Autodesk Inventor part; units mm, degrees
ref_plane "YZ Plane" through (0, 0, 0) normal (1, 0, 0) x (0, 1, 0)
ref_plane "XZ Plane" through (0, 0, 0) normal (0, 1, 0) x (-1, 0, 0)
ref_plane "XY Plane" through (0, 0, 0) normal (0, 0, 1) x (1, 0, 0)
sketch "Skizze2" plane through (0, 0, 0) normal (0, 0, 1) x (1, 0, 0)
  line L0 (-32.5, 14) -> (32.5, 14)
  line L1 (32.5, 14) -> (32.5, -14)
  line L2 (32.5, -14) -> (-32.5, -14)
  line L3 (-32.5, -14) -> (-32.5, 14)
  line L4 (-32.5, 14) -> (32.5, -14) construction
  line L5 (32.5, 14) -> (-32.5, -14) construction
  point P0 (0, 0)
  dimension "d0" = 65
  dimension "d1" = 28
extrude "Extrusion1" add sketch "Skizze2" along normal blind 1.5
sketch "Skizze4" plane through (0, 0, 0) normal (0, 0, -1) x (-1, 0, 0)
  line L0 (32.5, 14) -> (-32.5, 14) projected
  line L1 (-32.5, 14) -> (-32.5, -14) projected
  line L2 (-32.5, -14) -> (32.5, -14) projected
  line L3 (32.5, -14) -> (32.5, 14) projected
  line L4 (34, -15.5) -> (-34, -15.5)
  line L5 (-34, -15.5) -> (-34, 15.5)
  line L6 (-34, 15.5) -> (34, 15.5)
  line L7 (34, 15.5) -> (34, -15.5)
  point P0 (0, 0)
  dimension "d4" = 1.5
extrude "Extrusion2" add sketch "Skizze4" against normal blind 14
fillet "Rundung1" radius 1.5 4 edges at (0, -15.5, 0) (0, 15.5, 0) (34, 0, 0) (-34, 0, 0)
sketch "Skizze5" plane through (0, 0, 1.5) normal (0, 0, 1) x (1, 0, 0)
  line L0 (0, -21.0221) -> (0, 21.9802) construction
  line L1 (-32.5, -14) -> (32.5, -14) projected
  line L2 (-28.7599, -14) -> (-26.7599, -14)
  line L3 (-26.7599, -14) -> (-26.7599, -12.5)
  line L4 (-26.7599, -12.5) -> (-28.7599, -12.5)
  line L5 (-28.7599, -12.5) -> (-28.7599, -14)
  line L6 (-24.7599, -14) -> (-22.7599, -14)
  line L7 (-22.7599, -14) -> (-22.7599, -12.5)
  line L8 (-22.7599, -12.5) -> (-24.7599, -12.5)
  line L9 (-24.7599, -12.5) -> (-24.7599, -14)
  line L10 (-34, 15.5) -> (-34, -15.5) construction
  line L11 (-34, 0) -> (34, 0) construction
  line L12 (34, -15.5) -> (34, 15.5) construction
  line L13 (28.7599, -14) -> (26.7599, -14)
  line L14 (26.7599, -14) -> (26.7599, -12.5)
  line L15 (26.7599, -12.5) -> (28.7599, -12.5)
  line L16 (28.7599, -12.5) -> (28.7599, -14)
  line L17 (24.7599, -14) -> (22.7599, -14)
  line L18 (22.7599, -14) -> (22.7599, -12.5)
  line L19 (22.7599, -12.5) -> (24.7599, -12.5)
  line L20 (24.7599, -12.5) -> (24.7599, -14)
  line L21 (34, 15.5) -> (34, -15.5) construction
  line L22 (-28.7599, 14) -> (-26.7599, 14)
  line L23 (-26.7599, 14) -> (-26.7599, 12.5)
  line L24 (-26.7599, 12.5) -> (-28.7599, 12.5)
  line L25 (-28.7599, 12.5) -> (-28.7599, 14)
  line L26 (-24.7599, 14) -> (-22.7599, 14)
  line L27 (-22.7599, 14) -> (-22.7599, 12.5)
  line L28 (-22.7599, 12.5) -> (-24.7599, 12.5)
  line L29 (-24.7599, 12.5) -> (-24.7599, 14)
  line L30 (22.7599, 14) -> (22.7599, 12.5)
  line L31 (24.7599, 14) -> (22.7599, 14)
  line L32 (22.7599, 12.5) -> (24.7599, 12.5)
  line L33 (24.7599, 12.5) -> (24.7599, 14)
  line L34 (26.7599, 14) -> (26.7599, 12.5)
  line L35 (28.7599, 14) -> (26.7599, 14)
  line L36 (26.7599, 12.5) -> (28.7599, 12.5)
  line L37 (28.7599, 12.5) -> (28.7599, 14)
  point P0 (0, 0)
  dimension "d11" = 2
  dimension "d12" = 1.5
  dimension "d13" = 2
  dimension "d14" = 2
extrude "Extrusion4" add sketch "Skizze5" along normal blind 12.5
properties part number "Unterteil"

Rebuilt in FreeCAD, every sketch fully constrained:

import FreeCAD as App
import Part
import Sketcher


def edges_at(feature, points):
    """Names of the edges that pass closest to the given points."""
    edges = feature.Shape.Edges
    near = lambda p: min(range(len(edges)), key=lambda i: edges[i].distToShape(Part.Vertex(*p))[0])
    return sorted({f"Edge{near(p) + 1}" for p in points})

doc = App.newDocument("Part")
body = doc.addObject("PartDesign::Body", "Body")

# Sketch on XY plane
sketch1 = body.newObject("Sketcher::SketchObject", "Sketch")
sketch1.AttachmentSupport = (doc.getObject("XY_Plane"), [""])
sketch1.MapMode = "FlatFace"
sketch1.addGeometry(Part.LineSegment(App.Vector(32.5, 14, 0), App.Vector(-32.5, 14, 0)), False)
sketch1.addGeometry(Part.LineSegment(App.Vector(-32.5, 14, 0), App.Vector(-32.5, -14, 0)), False)
sketch1.addGeometry(Part.LineSegment(App.Vector(-32.5, -14, 0), App.Vector(32.5, -14, 0)), False)
sketch1.addGeometry(Part.LineSegment(App.Vector(32.5, -14, 0), App.Vector(32.5, 14, 0)), False)
sketch1.addConstraint(Sketcher.Constraint("Coincident", 0, 2, 1, 1))
sketch1.addConstraint(Sketcher.Constraint("Coincident", 1, 2, 2, 1))
sketch1.addConstraint(Sketcher.Constraint("Coincident", 2, 2, 3, 1))
sketch1.addConstraint(Sketcher.Constraint("Coincident", 3, 2, 0, 1))
sketch1.addConstraint(Sketcher.Constraint("Horizontal", 0))
sketch1.addConstraint(Sketcher.Constraint("Vertical", 1))
sketch1.addConstraint(Sketcher.Constraint("Horizontal", 2))
sketch1.addConstraint(Sketcher.Constraint("Vertical", 3))
sketch1.addConstraint(Sketcher.Constraint("Symmetric", 0, 2, 2, 2, -1, 1))
sketch1.addConstraint(Sketcher.Constraint("DistanceX", 0, 2, 0, 1, 65.0))
sketch1.addConstraint(Sketcher.Constraint("DistanceY", 1, 2, 1, 1, 28.0))
pad1 = body.newObject("PartDesign::Pad", "Pad")
pad1.Profile = sketch1
pad1.Length = 1.5

# Sketch on XY plane
sketch2 = body.newObject("Sketcher::SketchObject", "Sketch001")
sketch2.AttachmentSupport = (doc.getObject("XY_Plane"), [""])
sketch2.MapMode = "FlatFace"
sketch2.addGeometry(Part.LineSegment(App.Vector(34, -15.5, 0), App.Vector(-34, -15.5, 0)), False)
sketch2.addGeometry(Part.LineSegment(App.Vector(-34, -15.5, 0), App.Vector(-34, 15.5, 0)), False)
sketch2.addGeometry(Part.LineSegment(App.Vector(-34, 15.5, 0), App.Vector(34, 15.5, 0)), False)
sketch2.addGeometry(Part.LineSegment(App.Vector(34, 15.5, 0), App.Vector(34, -15.5, 0)), False)
sketch2.addGeometry(Part.LineSegment(App.Vector(32.5, 14, 0), App.Vector(-32.5, 14, 0)), False)
sketch2.addGeometry(Part.LineSegment(App.Vector(-32.5, 14, 0), App.Vector(-32.5, -14, 0)), False)
sketch2.addGeometry(Part.LineSegment(App.Vector(-32.5, -14, 0), App.Vector(32.5, -14, 0)), False)
sketch2.addGeometry(Part.LineSegment(App.Vector(32.5, -14, 0), App.Vector(32.5, 14, 0)), False)
sketch2.addConstraint(Sketcher.Constraint("Coincident", 0, 2, 1, 1))
sketch2.addConstraint(Sketcher.Constraint("Coincident", 1, 2, 2, 1))
sketch2.addConstraint(Sketcher.Constraint("Coincident", 2, 2, 3, 1))
sketch2.addConstraint(Sketcher.Constraint("Coincident", 3, 2, 0, 1))
sketch2.addConstraint(Sketcher.Constraint("Coincident", 4, 2, 5, 1))
sketch2.addConstraint(Sketcher.Constraint("Coincident", 5, 2, 6, 1))
sketch2.addConstraint(Sketcher.Constraint("Coincident", 6, 2, 7, 1))
sketch2.addConstraint(Sketcher.Constraint("Coincident", 7, 2, 4, 1))
sketch2.addConstraint(Sketcher.Constraint("Horizontal", 0))
sketch2.addConstraint(Sketcher.Constraint("Vertical", 1))
sketch2.addConstraint(Sketcher.Constraint("Horizontal", 2))
sketch2.addConstraint(Sketcher.Constraint("Vertical", 3))
sketch2.addConstraint(Sketcher.Constraint("Horizontal", 4))
sketch2.addConstraint(Sketcher.Constraint("Vertical", 5))
sketch2.addConstraint(Sketcher.Constraint("Horizontal", 6))
sketch2.addConstraint(Sketcher.Constraint("Vertical", 7))
sketch2.addConstraint(Sketcher.Constraint("Symmetric", 0, 2, 2, 2, -1, 1))
sketch2.addConstraint(Sketcher.Constraint("Symmetric", 4, 2, 6, 2, -1, 1))
sketch2.addConstraint(Sketcher.Constraint("DistanceX", 1, 2, 4, 2, 1.5))
sketch2.addConstraint(Sketcher.Constraint("DistanceY", 4, 2, 1, 2, 1.5))
sketch2.addConstraint(Sketcher.Constraint("DistanceX", 0, 2, 0, 1, 68.0))
sketch2.addConstraint(Sketcher.Constraint("DistanceY", 1, 1, 1, 2, 31.0))
pad2 = body.newObject("PartDesign::Pad", "Pad001")
pad2.Profile = sketch2
pad2.Length = 14
doc.recompute()

fillet = body.newObject("PartDesign::Fillet", "Fillet")
fillet.Base = (pad2, edges_at(pad2, [
    (0, -15.5, 0),
    (0, 15.5, 0),
    (34, 0, 0),
    (-34, 0, 0),
]))
fillet.Radius = 1.5

# Sketch on XY plane
sketch3 = body.newObject("Sketcher::SketchObject", "Sketch002")
sketch3.AttachmentSupport = (doc.getObject("XY_Plane"), [""])
sketch3.MapMode = "FlatFace"
sketch3.AttachmentOffset = App.Placement(App.Vector(0, 0, 1.5), App.Rotation())
sketch3.addGeometry(Part.LineSegment(App.Vector(-28.7599, -12.5, 0), App.Vector(-28.7599, -14, 0)), False)
sketch3.addGeometry(Part.LineSegment(App.Vector(-28.7599, -14, 0), App.Vector(-26.7599, -14, 0)), False)
sketch3.addGeometry(Part.LineSegment(App.Vector(-26.7599, -14, 0), App.Vector(-26.7599, -12.5, 0)), False)
sketch3.addGeometry(Part.LineSegment(App.Vector(-26.7599, -12.5, 0), App.Vector(-28.7599, -12.5, 0)), False)
sketch3.addGeometry(Part.LineSegment(App.Vector(26.7599, -12.5, 0), App.Vector(26.7599, -14, 0)), False)
sketch3.addGeometry(Part.LineSegment(App.Vector(26.7599, -14, 0), App.Vector(28.7599, -14, 0)), False)
sketch3.addGeometry(Part.LineSegment(App.Vector(28.7599, -14, 0), App.Vector(28.7599, -12.5, 0)), False)
sketch3.addGeometry(Part.LineSegment(App.Vector(28.7599, -12.5, 0), App.Vector(26.7599, -12.5, 0)), False)
sketch3.addGeometry(Part.LineSegment(App.Vector(22.7599, -12.5, 0), App.Vector(22.7599, -14, 0)), False)
sketch3.addGeometry(Part.LineSegment(App.Vector(22.7599, -14, 0), App.Vector(24.7599, -14, 0)), False)
sketch3.addGeometry(Part.LineSegment(App.Vector(24.7599, -14, 0), App.Vector(24.7599, -12.5, 0)), False)
sketch3.addGeometry(Part.LineSegment(App.Vector(24.7599, -12.5, 0), App.Vector(22.7599, -12.5, 0)), False)
sketch3.addGeometry(Part.LineSegment(App.Vector(-24.7599, -12.5, 0), App.Vector(-24.7599, -14, 0)), False)
sketch3.addGeometry(Part.LineSegment(App.Vector(-24.7599, -14, 0), App.Vector(-22.7599, -14, 0)), False)
sketch3.addGeometry(Part.LineSegment(App.Vector(-22.7599, -14, 0), App.Vector(-22.7599, -12.5, 0)), False)
sketch3.addGeometry(Part.LineSegment(App.Vector(-22.7599, -12.5, 0), App.Vector(-24.7599, -12.5, 0)), False)
sketch3.addGeometry(Part.LineSegment(App.Vector(-26.7599, 14, 0), App.Vector(-28.7599, 14, 0)), False)
sketch3.addGeometry(Part.LineSegment(App.Vector(-28.7599, 14, 0), App.Vector(-28.7599, 12.5, 0)), False)
sketch3.addGeometry(Part.LineSegment(App.Vector(-28.7599, 12.5, 0), App.Vector(-26.7599, 12.5, 0)), False)
sketch3.addGeometry(Part.LineSegment(App.Vector(-26.7599, 12.5, 0), App.Vector(-26.7599, 14, 0)), False)
sketch3.addGeometry(Part.LineSegment(App.Vector(-22.7599, 14, 0), App.Vector(-24.7599, 14, 0)), False)
sketch3.addGeometry(Part.LineSegment(App.Vector(-24.7599, 14, 0), App.Vector(-24.7599, 12.5, 0)), False)
sketch3.addGeometry(Part.LineSegment(App.Vector(-24.7599, 12.5, 0), App.Vector(-22.7599, 12.5, 0)), False)
sketch3.addGeometry(Part.LineSegment(App.Vector(-22.7599, 12.5, 0), App.Vector(-22.7599, 14, 0)), False)
sketch3.addGeometry(Part.LineSegment(App.Vector(24.7599, 14, 0), App.Vector(22.7599, 14, 0)), False)
sketch3.addGeometry(Part.LineSegment(App.Vector(22.7599, 14, 0), App.Vector(22.7599, 12.5, 0)), False)
sketch3.addGeometry(Part.LineSegment(App.Vector(22.7599, 12.5, 0), App.Vector(24.7599, 12.5, 0)), False)
sketch3.addGeometry(Part.LineSegment(App.Vector(24.7599, 12.5, 0), App.Vector(24.7599, 14, 0)), False)
sketch3.addGeometry(Part.LineSegment(App.Vector(28.7599, 14, 0), App.Vector(26.7599, 14, 0)), False)
sketch3.addGeometry(Part.LineSegment(App.Vector(26.7599, 14, 0), App.Vector(26.7599, 12.5, 0)), False)
sketch3.addGeometry(Part.LineSegment(App.Vector(26.7599, 12.5, 0), App.Vector(28.7599, 12.5, 0)), False)
sketch3.addGeometry(Part.LineSegment(App.Vector(28.7599, 12.5, 0), App.Vector(28.7599, 14, 0)), False)
sketch3.addConstraint(Sketcher.Constraint("Coincident", 0, 2, 1, 1))
sketch3.addConstraint(Sketcher.Constraint("Coincident", 1, 2, 2, 1))
sketch3.addConstraint(Sketcher.Constraint("Coincident", 2, 2, 3, 1))
sketch3.addConstraint(Sketcher.Constraint("Coincident", 3, 2, 0, 1))
sketch3.addConstraint(Sketcher.Constraint("Coincident", 4, 2, 5, 1))
sketch3.addConstraint(Sketcher.Constraint("Coincident", 5, 2, 6, 1))
sketch3.addConstraint(Sketcher.Constraint("Coincident", 6, 2, 7, 1))
sketch3.addConstraint(Sketcher.Constraint("Coincident", 7, 2, 4, 1))
sketch3.addConstraint(Sketcher.Constraint("Coincident", 8, 2, 9, 1))
sketch3.addConstraint(Sketcher.Constraint("Coincident", 9, 2, 10, 1))
sketch3.addConstraint(Sketcher.Constraint("Coincident", 10, 2, 11, 1))
sketch3.addConstraint(Sketcher.Constraint("Coincident", 11, 2, 8, 1))
sketch3.addConstraint(Sketcher.Constraint("Coincident", 12, 2, 13, 1))
sketch3.addConstraint(Sketcher.Constraint("Coincident", 13, 2, 14, 1))
sketch3.addConstraint(Sketcher.Constraint("Coincident", 14, 2, 15, 1))
sketch3.addConstraint(Sketcher.Constraint("Coincident", 15, 2, 12, 1))
sketch3.addConstraint(Sketcher.Constraint("Coincident", 16, 2, 17, 1))
sketch3.addConstraint(Sketcher.Constraint("Coincident", 17, 2, 18, 1))
sketch3.addConstraint(Sketcher.Constraint("Coincident", 18, 2, 19, 1))
sketch3.addConstraint(Sketcher.Constraint("Coincident", 19, 2, 16, 1))
sketch3.addConstraint(Sketcher.Constraint("Coincident", 20, 2, 21, 1))
sketch3.addConstraint(Sketcher.Constraint("Coincident", 21, 2, 22, 1))
sketch3.addConstraint(Sketcher.Constraint("Coincident", 22, 2, 23, 1))
sketch3.addConstraint(Sketcher.Constraint("Coincident", 23, 2, 20, 1))
sketch3.addConstraint(Sketcher.Constraint("Coincident", 24, 2, 25, 1))
sketch3.addConstraint(Sketcher.Constraint("Coincident", 25, 2, 26, 1))
sketch3.addConstraint(Sketcher.Constraint("Coincident", 26, 2, 27, 1))
sketch3.addConstraint(Sketcher.Constraint("Coincident", 27, 2, 24, 1))
sketch3.addConstraint(Sketcher.Constraint("Coincident", 28, 2, 29, 1))
sketch3.addConstraint(Sketcher.Constraint("Coincident", 29, 2, 30, 1))
sketch3.addConstraint(Sketcher.Constraint("Coincident", 30, 2, 31, 1))
sketch3.addConstraint(Sketcher.Constraint("Coincident", 31, 2, 28, 1))
sketch3.addConstraint(Sketcher.Constraint("Vertical", 0))
sketch3.addConstraint(Sketcher.Constraint("Horizontal", 1))
sketch3.addConstraint(Sketcher.Constraint("Vertical", 2))
sketch3.addConstraint(Sketcher.Constraint("Horizontal", 3))
sketch3.addConstraint(Sketcher.Constraint("Vertical", 4))
sketch3.addConstraint(Sketcher.Constraint("Horizontal", 5))
sketch3.addConstraint(Sketcher.Constraint("Vertical", 6))
sketch3.addConstraint(Sketcher.Constraint("Horizontal", 7))
sketch3.addConstraint(Sketcher.Constraint("Vertical", 8))
sketch3.addConstraint(Sketcher.Constraint("Horizontal", 9))
sketch3.addConstraint(Sketcher.Constraint("Vertical", 10))
sketch3.addConstraint(Sketcher.Constraint("Horizontal", 11))
sketch3.addConstraint(Sketcher.Constraint("Vertical", 12))
sketch3.addConstraint(Sketcher.Constraint("Horizontal", 13))
sketch3.addConstraint(Sketcher.Constraint("Vertical", 14))
sketch3.addConstraint(Sketcher.Constraint("Horizontal", 15))
sketch3.addConstraint(Sketcher.Constraint("Horizontal", 16))
sketch3.addConstraint(Sketcher.Constraint("Vertical", 17))
sketch3.addConstraint(Sketcher.Constraint("Horizontal", 18))
sketch3.addConstraint(Sketcher.Constraint("Vertical", 19))
sketch3.addConstraint(Sketcher.Constraint("Horizontal", 20))
sketch3.addConstraint(Sketcher.Constraint("Vertical", 21))
sketch3.addConstraint(Sketcher.Constraint("Horizontal", 22))
sketch3.addConstraint(Sketcher.Constraint("Vertical", 23))
sketch3.addConstraint(Sketcher.Constraint("Horizontal", 24))
sketch3.addConstraint(Sketcher.Constraint("Vertical", 25))
sketch3.addConstraint(Sketcher.Constraint("Horizontal", 26))
sketch3.addConstraint(Sketcher.Constraint("Vertical", 27))
sketch3.addConstraint(Sketcher.Constraint("Horizontal", 28))
sketch3.addConstraint(Sketcher.Constraint("Vertical", 29))
sketch3.addConstraint(Sketcher.Constraint("Horizontal", 30))
sketch3.addConstraint(Sketcher.Constraint("Vertical", 31))
sketch3.addConstraint(Sketcher.Constraint("Symmetric", 5, 2, 16, 2, -1, 1))
sketch3.addConstraint(Sketcher.Constraint("Symmetric", 7, 2, 18, 2, -1, 1))
sketch3.addConstraint(Sketcher.Constraint("Symmetric", 9, 2, 20, 2, -1, 1))
sketch3.addConstraint(Sketcher.Constraint("Symmetric", 11, 2, 22, 2, -1, 1))
sketch3.addConstraint(Sketcher.Constraint("Symmetric", 13, 2, 24, 2, -1, 1))
sketch3.addConstraint(Sketcher.Constraint("Symmetric", 15, 2, 26, 2, -1, 1))
sketch3.addConstraint(Sketcher.Constraint("Symmetric", 1, 2, 28, 2, -1, 1))
sketch3.addConstraint(Sketcher.Constraint("Symmetric", 3, 2, 30, 2, -1, 1))
sketch3.addConstraint(Sketcher.Constraint("Symmetric", 1, 2, 4, 2, -2))
sketch3.addConstraint(Sketcher.Constraint("Symmetric", 3, 2, 6, 2, -2))
sketch3.addConstraint(Sketcher.Constraint("Symmetric", 9, 2, 12, 2, -2))
sketch3.addConstraint(Sketcher.Constraint("Symmetric", 11, 2, 14, 2, -2))
sketch3.addConstraint(Sketcher.Constraint("Horizontal", 5, 2, 8, 2))
sketch3.addConstraint(Sketcher.Constraint("Horizontal", 7, 2, 10, 2))
sketch3.addConstraint(Sketcher.Constraint("Equal", 7, 9))
sketch3.addConstraint(Sketcher.Constraint("DistanceX", 1, 1, 1, 2, 2.0))
sketch3.addConstraint(Sketcher.Constraint("DistanceY", 0, 2, 0, 1, 1.5))
sketch3.addConstraint(Sketcher.Constraint("DistanceX", 9, 2, 4, 2, 2.0))
sketch3.addConstraint(Sketcher.Constraint("DistanceY", 0, 2, -1, 1, 14.0))
sketch3.addConstraint(Sketcher.Constraint("DistanceX", 0, 2, -1, 1, 28.76))
pad3 = body.newObject("PartDesign::Pad", "Pad002")
pad3.Profile = sketch3
pad3.Length = 12.5

doc.recompute()
